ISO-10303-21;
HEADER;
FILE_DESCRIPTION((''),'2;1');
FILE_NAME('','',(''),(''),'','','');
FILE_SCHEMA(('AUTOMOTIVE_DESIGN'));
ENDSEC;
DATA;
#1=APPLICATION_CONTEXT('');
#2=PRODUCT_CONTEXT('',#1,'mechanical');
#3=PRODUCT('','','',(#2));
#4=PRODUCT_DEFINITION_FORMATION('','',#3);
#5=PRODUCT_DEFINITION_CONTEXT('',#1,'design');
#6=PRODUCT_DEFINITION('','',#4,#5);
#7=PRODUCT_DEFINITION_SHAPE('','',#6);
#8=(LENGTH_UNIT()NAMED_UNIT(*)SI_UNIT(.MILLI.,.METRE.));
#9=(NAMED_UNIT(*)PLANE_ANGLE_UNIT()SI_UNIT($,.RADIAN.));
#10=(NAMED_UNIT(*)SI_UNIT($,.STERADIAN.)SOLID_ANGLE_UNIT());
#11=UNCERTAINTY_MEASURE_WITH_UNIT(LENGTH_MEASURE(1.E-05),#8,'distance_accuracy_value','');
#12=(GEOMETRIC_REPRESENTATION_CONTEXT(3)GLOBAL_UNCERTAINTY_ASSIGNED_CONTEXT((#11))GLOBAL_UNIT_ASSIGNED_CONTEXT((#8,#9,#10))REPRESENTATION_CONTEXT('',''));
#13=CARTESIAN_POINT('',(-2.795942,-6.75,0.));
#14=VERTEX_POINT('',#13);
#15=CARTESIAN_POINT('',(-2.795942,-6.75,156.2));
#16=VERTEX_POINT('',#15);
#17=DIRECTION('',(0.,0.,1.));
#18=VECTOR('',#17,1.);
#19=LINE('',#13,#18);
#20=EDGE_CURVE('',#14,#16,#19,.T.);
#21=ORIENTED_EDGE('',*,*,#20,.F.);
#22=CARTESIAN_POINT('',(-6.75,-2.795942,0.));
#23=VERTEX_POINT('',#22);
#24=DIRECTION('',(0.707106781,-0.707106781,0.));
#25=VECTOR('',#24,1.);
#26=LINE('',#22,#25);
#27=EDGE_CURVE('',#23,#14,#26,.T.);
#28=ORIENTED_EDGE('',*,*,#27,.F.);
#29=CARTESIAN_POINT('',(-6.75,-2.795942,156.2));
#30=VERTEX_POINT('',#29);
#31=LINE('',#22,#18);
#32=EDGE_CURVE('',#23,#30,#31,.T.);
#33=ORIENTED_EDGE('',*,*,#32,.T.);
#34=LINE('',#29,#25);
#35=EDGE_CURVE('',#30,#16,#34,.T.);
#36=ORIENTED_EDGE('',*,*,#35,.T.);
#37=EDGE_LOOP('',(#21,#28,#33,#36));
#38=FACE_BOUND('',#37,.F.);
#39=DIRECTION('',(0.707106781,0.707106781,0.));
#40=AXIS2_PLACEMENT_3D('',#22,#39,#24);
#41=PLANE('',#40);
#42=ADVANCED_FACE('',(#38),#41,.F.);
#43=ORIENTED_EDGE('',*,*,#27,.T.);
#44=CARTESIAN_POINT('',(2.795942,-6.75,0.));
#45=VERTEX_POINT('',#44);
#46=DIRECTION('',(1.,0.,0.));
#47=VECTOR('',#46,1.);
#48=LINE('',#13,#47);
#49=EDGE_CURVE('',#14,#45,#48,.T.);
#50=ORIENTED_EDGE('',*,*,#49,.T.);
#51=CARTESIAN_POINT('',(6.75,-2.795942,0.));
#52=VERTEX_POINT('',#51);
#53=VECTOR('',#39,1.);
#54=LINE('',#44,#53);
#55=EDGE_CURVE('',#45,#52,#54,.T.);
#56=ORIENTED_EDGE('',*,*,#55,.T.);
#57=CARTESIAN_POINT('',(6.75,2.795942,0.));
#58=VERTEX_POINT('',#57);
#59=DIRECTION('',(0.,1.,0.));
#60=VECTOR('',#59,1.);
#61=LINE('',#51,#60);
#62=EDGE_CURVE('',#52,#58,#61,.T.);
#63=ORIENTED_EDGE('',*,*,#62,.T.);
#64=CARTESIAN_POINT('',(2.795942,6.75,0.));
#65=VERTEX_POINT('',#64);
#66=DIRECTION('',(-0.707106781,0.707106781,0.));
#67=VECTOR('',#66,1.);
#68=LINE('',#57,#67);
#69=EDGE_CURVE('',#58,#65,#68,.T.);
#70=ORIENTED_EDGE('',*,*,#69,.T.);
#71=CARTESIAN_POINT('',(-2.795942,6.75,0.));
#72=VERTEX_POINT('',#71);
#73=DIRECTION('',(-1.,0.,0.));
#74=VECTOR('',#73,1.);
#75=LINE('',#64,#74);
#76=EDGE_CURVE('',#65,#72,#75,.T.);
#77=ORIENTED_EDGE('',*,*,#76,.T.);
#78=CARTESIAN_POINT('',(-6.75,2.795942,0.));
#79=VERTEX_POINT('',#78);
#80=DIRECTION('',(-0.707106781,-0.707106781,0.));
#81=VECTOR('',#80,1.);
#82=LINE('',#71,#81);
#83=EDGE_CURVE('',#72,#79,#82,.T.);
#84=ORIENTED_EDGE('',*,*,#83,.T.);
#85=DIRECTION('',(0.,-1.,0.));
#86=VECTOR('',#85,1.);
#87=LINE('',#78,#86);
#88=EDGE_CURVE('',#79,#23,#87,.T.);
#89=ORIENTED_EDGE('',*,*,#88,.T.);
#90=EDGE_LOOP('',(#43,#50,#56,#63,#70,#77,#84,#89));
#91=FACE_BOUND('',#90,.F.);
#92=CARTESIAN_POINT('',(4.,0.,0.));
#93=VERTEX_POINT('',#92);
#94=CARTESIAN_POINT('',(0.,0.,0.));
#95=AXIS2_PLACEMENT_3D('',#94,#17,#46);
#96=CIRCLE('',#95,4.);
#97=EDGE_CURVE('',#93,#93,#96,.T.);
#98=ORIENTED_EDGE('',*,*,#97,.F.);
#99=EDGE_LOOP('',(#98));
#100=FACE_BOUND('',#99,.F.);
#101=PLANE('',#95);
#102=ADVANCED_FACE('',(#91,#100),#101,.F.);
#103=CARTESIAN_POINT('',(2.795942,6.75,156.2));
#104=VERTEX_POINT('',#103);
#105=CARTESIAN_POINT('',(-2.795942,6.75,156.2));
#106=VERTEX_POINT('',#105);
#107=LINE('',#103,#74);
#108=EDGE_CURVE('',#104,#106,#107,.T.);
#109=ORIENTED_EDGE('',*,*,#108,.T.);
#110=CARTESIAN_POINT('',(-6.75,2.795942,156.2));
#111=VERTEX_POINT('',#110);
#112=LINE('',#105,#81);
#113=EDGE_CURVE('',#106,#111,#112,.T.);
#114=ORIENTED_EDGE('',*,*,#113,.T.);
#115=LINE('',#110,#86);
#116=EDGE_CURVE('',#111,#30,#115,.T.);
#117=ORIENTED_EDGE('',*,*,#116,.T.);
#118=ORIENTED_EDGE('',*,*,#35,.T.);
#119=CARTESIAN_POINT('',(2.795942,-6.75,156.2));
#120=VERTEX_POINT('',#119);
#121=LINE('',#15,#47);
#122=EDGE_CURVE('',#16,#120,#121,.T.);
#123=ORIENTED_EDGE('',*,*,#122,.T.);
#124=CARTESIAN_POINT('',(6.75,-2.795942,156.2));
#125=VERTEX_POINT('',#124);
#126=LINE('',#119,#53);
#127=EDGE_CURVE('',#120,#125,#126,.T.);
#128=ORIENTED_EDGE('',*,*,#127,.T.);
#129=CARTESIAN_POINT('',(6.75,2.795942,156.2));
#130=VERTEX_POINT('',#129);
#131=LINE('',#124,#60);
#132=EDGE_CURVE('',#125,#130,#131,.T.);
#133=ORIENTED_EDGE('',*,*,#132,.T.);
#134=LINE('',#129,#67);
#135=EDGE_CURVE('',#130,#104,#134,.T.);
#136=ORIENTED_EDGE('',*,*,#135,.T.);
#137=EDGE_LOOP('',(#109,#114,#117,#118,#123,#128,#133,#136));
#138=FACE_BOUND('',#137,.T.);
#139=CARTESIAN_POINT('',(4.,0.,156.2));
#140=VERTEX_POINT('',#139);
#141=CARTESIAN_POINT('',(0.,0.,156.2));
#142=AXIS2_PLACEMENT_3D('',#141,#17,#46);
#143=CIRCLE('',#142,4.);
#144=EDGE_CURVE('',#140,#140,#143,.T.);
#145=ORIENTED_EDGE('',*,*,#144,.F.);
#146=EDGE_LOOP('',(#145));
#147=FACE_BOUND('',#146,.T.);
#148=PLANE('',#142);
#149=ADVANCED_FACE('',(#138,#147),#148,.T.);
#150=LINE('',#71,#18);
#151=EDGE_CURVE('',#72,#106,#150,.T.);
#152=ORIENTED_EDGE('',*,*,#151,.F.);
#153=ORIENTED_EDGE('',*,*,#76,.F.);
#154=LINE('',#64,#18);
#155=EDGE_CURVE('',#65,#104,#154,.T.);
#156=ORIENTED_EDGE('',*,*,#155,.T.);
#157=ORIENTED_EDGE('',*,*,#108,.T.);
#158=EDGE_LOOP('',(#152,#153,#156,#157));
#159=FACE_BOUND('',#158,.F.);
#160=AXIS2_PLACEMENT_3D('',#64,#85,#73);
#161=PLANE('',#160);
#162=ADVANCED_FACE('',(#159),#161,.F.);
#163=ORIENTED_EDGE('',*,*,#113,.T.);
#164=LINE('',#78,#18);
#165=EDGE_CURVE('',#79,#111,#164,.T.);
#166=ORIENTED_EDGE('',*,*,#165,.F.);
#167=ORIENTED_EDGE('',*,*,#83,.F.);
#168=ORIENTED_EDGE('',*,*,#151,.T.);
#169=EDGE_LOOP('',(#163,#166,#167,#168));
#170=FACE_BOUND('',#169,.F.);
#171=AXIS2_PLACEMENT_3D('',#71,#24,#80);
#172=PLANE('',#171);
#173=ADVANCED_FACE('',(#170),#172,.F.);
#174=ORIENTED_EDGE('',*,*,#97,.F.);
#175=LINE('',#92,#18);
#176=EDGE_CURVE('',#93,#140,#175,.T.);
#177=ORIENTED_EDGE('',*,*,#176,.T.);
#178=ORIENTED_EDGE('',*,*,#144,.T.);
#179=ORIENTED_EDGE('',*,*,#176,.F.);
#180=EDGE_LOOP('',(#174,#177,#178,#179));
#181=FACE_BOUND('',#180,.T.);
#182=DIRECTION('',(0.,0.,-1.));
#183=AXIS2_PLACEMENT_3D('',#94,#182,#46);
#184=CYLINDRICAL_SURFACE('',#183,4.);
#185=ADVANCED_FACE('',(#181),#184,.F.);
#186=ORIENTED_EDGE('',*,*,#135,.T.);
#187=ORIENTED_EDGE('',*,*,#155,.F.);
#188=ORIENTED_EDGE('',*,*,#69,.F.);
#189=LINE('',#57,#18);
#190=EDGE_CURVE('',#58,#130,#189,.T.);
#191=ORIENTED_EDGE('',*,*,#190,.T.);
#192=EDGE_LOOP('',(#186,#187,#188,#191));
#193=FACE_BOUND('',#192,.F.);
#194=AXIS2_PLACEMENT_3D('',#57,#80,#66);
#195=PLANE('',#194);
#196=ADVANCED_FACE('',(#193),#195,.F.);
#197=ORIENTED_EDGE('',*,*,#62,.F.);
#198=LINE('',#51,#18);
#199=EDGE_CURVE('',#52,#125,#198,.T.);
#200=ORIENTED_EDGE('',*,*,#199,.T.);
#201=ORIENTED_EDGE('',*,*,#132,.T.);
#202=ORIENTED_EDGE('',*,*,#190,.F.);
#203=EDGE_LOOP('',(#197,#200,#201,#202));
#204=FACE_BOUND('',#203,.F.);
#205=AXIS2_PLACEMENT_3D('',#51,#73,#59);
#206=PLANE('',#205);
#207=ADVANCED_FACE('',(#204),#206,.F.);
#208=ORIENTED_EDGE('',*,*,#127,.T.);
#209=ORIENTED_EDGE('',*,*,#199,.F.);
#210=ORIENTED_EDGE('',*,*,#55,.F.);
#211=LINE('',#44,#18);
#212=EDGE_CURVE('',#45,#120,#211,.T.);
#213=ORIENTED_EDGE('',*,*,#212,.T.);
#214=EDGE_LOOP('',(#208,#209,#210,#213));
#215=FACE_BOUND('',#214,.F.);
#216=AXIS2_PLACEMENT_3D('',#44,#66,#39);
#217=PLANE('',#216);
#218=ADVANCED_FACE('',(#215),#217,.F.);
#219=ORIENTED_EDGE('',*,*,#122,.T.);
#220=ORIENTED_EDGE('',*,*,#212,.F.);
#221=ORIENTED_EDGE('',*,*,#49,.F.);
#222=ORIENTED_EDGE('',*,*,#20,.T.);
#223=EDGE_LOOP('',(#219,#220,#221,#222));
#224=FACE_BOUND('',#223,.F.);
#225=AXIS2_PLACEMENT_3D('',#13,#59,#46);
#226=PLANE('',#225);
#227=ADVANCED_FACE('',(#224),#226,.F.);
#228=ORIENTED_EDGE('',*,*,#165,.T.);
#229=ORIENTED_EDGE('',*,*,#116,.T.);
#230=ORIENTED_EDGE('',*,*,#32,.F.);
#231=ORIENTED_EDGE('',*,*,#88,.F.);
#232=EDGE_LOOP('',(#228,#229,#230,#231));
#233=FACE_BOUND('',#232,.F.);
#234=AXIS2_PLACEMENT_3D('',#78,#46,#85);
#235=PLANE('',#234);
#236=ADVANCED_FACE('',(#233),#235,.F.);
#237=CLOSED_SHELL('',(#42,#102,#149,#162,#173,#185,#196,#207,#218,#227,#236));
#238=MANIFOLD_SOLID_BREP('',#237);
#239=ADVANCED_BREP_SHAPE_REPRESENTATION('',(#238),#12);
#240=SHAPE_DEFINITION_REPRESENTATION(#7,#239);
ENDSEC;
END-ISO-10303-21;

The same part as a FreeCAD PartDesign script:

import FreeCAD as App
import Part
import Sketcher
Q = App.Units.Quantity

doc = App.newDocument("Part")
body = doc.addObject("PartDesign::Body", "Body")

# Sketch on XY plane
sketch1 = body.newObject("Sketcher::SketchObject", "Sketch")
sketch1.AttachmentSupport = (doc.getObject("XY_Plane"), [""])
sketch1.MapMode = "FlatFace"
sketch1.addGeometry(Part.LineSegment(App.Vector(-2.8, -6.8, 0), App.Vector(2.8, -6.8, 0)), False)
sketch1.addGeometry(Part.LineSegment(App.Vector(2.8, -6.8, 0), App.Vector(6.8, -2.8, 0)), False)
sketch1.addGeometry(Part.LineSegment(App.Vector(6.8, -2.8, 0), App.Vector(6.8, 2.8, 0)), False)
sketch1.addGeometry(Part.LineSegment(App.Vector(6.8, 2.8, 0), App.Vector(2.8, 6.8, 0)), False)
sketch1.addGeometry(Part.LineSegment(App.Vector(2.8, 6.8, 0), App.Vector(-2.8, 6.8, 0)), False)
sketch1.addGeometry(Part.LineSegment(App.Vector(-2.8, 6.8, 0), App.Vector(-6.8, 2.8, 0)), False)
sketch1.addGeometry(Part.LineSegment(App.Vector(-6.8, 2.8, 0), App.Vector(-6.8, -2.8, 0)), False)
sketch1.addGeometry(Part.LineSegment(App.Vector(-6.8, -2.8, 0), App.Vector(-2.8, -6.8, 0)), False)
sketch1.addGeometry(Part.Circle(App.Vector(0, 0, 0), App.Vector(0, 0, 1), 4), False)
sketch1.addConstraint(Sketcher.Constraint("Coincident", 0, 2, 1, 1))
sketch1.addConstraint(Sketcher.Constraint("Coincident", 1, 2, 2, 1))
sketch1.addConstraint(Sketcher.Constraint("Coincident", 2, 2, 3, 1))
sketch1.addConstraint(Sketcher.Constraint("Coincident", 3, 2, 4, 1))
sketch1.addConstraint(Sketcher.Constraint("Coincident", 4, 2, 5, 1))
sketch1.addConstraint(Sketcher.Constraint("Coincident", 5, 2, 6, 1))
sketch1.addConstraint(Sketcher.Constraint("Coincident", 6, 2, 7, 1))
sketch1.addConstraint(Sketcher.Constraint("Coincident", 7, 2, 0, 1))
sketch1.addConstraint(Sketcher.Constraint("Horizontal", 0))
sketch1.addConstraint(Sketcher.Constraint("Vertical", 2))
sketch1.addConstraint(Sketcher.Constraint("Horizontal", 4))
sketch1.addConstraint(Sketcher.Constraint("Vertical", 6))
sketch1.addConstraint(Sketcher.Constraint("Coincident", 8, 3, -1, 1))
sketch1.addConstraint(Sketcher.Constraint("Symmetric", 0, 2, 4, 2, -1, 1))
sketch1.addConstraint(Sketcher.Constraint("Symmetric", 1, 2, 5, 2, -1, 1))
sketch1.addConstraint(Sketcher.Constraint("Perpendicular", 1, 3))
sketch1.addConstraint(Sketcher.Constraint("Perpendicular", 5, 7))
sketch1.addConstraint(Sketcher.Constraint("Horizontal", 2, 2, 5, 2))
sketch1.addConstraint(Sketcher.Constraint("Horizontal", 1, 2, 6, 2))
sketch1.addConstraint(Sketcher.Constraint("Vertical", 0, 2, 3, 2))
sketch1.addConstraint(Sketcher.Constraint("Equal", 4, 2))
sketch1.addConstraint(Sketcher.Constraint("Diameter", 8, Q("8 mm")))
sketch1.addConstraint(Sketcher.Constraint("DistanceY", 0, 2, 3, 2, Q("13.5 mm")))
sketch1.addConstraint(Sketcher.Constraint("DistanceX", 0, 1, 0, 2, Q("5.591884 mm")))
pad1 = body.newObject("PartDesign::Pad", "Pad")
pad1.Profile = sketch1
pad1.Length = 156.2

doc.recompute()
